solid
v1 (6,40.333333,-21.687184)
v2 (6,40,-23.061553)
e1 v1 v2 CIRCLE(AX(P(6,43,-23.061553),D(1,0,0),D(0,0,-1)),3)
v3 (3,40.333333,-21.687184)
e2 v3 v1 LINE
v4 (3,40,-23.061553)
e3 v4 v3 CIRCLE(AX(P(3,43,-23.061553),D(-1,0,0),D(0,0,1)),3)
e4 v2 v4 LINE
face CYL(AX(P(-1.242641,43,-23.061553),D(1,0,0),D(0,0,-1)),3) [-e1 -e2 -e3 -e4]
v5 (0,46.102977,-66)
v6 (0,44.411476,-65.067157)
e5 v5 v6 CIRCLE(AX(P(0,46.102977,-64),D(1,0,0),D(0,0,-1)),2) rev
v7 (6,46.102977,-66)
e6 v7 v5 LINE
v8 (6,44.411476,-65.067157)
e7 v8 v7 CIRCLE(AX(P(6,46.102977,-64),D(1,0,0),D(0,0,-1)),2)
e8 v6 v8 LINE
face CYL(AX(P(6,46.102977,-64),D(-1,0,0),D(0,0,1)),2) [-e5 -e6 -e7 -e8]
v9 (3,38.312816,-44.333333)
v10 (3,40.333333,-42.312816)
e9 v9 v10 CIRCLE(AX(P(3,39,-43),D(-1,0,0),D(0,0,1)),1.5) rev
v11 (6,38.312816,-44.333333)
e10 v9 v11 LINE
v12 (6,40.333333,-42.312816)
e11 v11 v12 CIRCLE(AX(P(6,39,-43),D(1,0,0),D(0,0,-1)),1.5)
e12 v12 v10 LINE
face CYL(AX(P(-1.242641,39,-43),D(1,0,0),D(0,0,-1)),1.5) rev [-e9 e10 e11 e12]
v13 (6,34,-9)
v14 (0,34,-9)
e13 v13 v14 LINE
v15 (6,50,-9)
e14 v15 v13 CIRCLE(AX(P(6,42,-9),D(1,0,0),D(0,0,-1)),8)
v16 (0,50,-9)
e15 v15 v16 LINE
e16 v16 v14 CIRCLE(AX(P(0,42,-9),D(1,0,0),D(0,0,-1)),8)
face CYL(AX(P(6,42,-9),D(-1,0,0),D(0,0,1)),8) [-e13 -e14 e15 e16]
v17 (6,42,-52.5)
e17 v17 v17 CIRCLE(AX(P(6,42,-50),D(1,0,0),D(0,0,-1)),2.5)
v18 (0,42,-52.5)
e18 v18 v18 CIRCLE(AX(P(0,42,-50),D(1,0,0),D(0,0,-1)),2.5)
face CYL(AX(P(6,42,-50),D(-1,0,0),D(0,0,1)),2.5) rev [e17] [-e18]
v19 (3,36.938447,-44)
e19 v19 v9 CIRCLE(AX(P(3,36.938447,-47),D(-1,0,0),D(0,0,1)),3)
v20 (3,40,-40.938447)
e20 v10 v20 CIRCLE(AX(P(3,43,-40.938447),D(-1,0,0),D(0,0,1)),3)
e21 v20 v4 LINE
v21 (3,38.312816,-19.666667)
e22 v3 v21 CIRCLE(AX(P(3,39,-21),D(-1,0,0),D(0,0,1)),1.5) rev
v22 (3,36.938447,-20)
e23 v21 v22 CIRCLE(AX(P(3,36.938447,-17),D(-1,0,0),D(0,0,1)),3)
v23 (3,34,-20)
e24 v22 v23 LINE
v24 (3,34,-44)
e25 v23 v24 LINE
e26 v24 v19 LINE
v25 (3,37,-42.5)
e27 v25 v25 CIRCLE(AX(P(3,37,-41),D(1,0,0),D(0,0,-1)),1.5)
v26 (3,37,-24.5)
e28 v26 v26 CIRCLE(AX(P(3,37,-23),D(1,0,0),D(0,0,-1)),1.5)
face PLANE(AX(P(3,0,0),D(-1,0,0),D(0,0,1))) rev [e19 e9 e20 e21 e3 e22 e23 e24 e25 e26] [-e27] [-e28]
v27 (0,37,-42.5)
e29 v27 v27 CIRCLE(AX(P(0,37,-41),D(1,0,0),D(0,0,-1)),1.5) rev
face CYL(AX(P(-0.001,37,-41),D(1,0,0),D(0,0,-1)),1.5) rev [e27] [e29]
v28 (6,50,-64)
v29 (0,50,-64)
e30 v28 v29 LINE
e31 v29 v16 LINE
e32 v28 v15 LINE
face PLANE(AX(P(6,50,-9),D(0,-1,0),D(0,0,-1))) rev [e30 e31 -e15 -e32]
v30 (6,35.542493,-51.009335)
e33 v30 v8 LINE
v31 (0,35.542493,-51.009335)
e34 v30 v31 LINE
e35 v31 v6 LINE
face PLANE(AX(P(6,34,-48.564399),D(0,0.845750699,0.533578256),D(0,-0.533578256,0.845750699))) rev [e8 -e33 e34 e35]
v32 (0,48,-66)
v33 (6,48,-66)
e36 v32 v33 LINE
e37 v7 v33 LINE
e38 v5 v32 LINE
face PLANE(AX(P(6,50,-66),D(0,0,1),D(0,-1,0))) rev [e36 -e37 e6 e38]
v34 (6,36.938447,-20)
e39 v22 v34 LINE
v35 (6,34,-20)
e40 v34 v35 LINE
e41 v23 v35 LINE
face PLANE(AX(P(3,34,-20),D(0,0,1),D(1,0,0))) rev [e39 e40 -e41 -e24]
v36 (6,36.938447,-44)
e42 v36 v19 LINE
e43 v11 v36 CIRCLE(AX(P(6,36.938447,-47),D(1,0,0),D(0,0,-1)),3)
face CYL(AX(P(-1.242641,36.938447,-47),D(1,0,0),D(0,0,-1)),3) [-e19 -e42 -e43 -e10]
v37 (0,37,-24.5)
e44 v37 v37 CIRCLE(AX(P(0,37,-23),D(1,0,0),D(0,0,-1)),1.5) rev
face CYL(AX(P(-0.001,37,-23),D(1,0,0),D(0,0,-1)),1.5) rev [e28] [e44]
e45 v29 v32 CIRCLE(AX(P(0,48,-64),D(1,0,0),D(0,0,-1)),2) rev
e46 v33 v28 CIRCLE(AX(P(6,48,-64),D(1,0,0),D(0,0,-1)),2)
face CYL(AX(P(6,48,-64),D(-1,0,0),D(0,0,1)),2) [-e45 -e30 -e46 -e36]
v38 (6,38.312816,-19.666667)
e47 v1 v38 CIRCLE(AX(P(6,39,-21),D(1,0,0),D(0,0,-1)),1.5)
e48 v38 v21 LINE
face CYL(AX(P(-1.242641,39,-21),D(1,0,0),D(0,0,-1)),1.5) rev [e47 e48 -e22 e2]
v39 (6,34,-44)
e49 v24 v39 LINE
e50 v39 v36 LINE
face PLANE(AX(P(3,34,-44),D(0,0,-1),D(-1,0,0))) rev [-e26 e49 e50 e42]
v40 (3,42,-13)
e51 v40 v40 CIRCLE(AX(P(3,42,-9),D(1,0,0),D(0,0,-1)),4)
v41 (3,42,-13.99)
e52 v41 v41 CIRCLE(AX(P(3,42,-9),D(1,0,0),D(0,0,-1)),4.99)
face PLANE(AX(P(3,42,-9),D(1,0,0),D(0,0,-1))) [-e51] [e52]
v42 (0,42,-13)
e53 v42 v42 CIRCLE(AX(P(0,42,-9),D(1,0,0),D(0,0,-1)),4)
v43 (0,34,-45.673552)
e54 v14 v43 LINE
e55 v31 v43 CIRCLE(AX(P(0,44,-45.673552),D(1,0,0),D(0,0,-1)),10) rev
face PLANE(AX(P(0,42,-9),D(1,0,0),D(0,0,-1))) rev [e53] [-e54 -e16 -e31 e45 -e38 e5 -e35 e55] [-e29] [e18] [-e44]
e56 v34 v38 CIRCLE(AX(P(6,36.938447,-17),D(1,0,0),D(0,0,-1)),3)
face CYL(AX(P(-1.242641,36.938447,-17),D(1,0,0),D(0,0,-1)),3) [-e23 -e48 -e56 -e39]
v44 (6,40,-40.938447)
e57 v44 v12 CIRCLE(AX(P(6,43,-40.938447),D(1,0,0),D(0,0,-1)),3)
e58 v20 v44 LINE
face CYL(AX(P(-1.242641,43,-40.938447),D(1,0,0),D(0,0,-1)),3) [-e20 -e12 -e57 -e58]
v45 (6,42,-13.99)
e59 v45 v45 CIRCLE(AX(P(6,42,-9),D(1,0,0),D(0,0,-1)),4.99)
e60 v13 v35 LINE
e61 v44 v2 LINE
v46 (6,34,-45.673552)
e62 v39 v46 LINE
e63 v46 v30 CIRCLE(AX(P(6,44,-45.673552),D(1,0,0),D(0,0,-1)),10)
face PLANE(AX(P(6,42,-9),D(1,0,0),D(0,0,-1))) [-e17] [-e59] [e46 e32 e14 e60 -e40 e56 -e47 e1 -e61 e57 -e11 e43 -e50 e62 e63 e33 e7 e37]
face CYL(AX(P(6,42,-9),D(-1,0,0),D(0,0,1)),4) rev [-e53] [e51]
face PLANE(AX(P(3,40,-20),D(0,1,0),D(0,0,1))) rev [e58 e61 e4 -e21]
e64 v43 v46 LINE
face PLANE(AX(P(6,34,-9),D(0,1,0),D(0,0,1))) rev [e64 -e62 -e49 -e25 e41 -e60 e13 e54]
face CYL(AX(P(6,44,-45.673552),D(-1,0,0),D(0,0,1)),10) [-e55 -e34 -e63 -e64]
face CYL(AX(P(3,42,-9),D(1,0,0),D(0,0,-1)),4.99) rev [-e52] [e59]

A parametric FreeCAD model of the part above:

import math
import FreeCAD as App
import Part
import Sketcher

V = App.Vector
Q = App.Units.Quantity


def edges_at(feature, points):
    """Names of the edges that pass closest to the given points."""
    edges = feature.Shape.Edges
    near = lambda p: min(range(len(edges)), key=lambda i: edges[i].distToShape(Part.Vertex(*p))[0])
    return sorted({f"Edge{near(p) + 1}" for p in points})


def add_polygon(sketch, points):
    """Adds a closed chain of lines whose ends are joined by coincident constraints."""
    first, n = sketch.GeometryCount, len(points)
    for a, b in zip(points, points[1:] + points[:1]):
        sketch.addGeometry(Part.LineSegment(App.Vector(*a, 0), App.Vector(*b, 0)), False)
    for i in range(n):
        sketch.addConstraint(Sketcher.Constraint("Coincident", first + i, 2, first + (i + 1) % n, 1))

doc = App.newDocument("Part")
body = doc.addObject("PartDesign::Body", "Body")

sketch1 = body.newObject("Sketcher::SketchObject", "Sketch")
sketch1.AttachmentSupport = (doc.getObject("YZ_Plane"), [""])
sketch1.MapMode = "FlatFace"
sketch1.addGeometry(Part.LineSegment(V(50, -66, 0), V(50, -9, 0)), False)
sketch1.addGeometry(Part.ArcOfCircle(Part.Circle(V(42, -9, 0), V(0, 0, 1), 8), math.radians(0), math.radians(180)), False)
sketch1.addGeometry(Part.LineSegment(V(34, -9, 0), V(34, -48.564399, 0)), False)
sketch1.addGeometry(Part.LineSegment(V(34, -48.564399, 0), V(45, -66, 0)), False)
sketch1.addGeometry(Part.LineSegment(V(45, -66, 0), V(50, -66, 0)), False)
sketch1.addGeometry(Part.Circle(V(42, -50, 0), V(0, 0, 1), 2.5), False)
sketch1.addGeometry(Part.Circle(V(42, -9, 0), V(0, 0, 1), 4), False)
sketch1.addConstraint(Sketcher.Constraint("Tangent", 0, 2, 1, 1))
sketch1.addConstraint(Sketcher.Constraint("Tangent", 1, 2, 2, 1))
sketch1.addConstraint(Sketcher.Constraint("Coincident", 2, 2, 3, 1))
sketch1.addConstraint(Sketcher.Constraint("Coincident", 3, 2, 4, 1))
sketch1.addConstraint(Sketcher.Constraint("Coincident", 4, 2, 0, 1))
sketch1.addConstraint(Sketcher.Constraint("Vertical", 0))
sketch1.addConstraint(Sketcher.Constraint("Vertical", 2))
sketch1.addConstraint(Sketcher.Constraint("Horizontal", 4))
sketch1.addConstraint(Sketcher.Constraint("Coincident", 6, 3, 1, 3))
sketch1.addConstraint(Sketcher.Constraint("Vertical", 1, 3, 5, 3))
sketch1.addConstraint(Sketcher.Constraint("Diameter", 5, Q("5 mm")))
sketch1.addConstraint(Sketcher.Constraint("Diameter", 6, Q("8 mm")))
sketch1.addConstraint(Sketcher.Constraint("Radius", 1, Q("8 mm")))
sketch1.addConstraint(Sketcher.Constraint("DistanceX", 4, 1, 4, 2, Q("5 mm")))
sketch1.addConstraint(Sketcher.Constraint("DistanceY", 0, 1, 0, 2, Q("57 mm")))
sketch1.addConstraint(Sketcher.Constraint("DistanceX", -1, 1, 1, 3, Q("42 mm")))
sketch1.addConstraint(Sketcher.Constraint("DistanceY", 1, 3, -1, 1, Q("9 mm")))
sketch1.addConstraint(Sketcher.Constraint("DistanceY", 5, 3, -1, 1, Q("50 mm")))
sketch1.addConstraint(Sketcher.Constraint("DistanceY", 2, 2, 2, 1, Q("39.564399 mm")))
pad1 = body.newObject("PartDesign::Pad", "Pad")
pad1.Profile = sketch1
pad1.Length = 6

sketch2 = body.newObject("Sketcher::SketchObject", "Sketch001")
sketch2.AttachmentSupport = (doc.getObject("YZ_Plane"), [""])
sketch2.MapMode = "FlatFace"
sketch2.AttachmentOffset = App.Placement(V(0, 0, 6), App.Rotation())
sketch2.addGeometry(Part.Circle(V(42, -9, 0), V(0, 0, 1), 4.99), False)
sketch2.addConstraint(Sketcher.Constraint("Diameter", 0, Q("9.98 mm")))
sketch2.addConstraint(Sketcher.Constraint("DistanceX", -1, 1, 0, 3, Q("42 mm")))
sketch2.addConstraint(Sketcher.Constraint("DistanceY", 0, 3, -1, 1, Q("9 mm")))
pocket1 = body.newObject("PartDesign::Pocket", "Pocket")
pocket1.Profile = sketch2
pocket1.Length = 3

sketch3 = body.newObject("Sketcher::SketchObject", "Sketch002")
sketch3.AttachmentSupport = (doc.getObject("YZ_Plane"), [""])
sketch3.MapMode = "FlatFace"
sketch3.AttachmentOffset = App.Placement(V(0, 0, 6), App.Rotation())
add_polygon(sketch3, [(40, -20), (34, -20), (34, -44), (40, -44)])
sketch3.addConstraint(Sketcher.Constraint("Horizontal", 0))
sketch3.addConstraint(Sketcher.Constraint("Vertical", 1))
sketch3.addConstraint(Sketcher.Constraint("Horizontal", 2))
sketch3.addConstraint(Sketcher.Constraint("Vertical", 3))
sketch3.addConstraint(Sketcher.Constraint("DistanceX", 0, 2, 0, 1, Q("6 mm")))
sketch3.addConstraint(Sketcher.Constraint("DistanceY", 1, 2, 1, 1, Q("24 mm")))
sketch3.addConstraint(Sketcher.Constraint("DistanceX", -1, 1, 0, 2, Q("34 mm")))
sketch3.addConstraint(Sketcher.Constraint("DistanceY", 0, 2, -1, 1, Q("20 mm")))
pocket2 = body.newObject("PartDesign::Pocket", "Pocket001")
pocket2.Profile = sketch3
pocket2.Length = 3

sketch4 = body.newObject("Sketcher::SketchObject", "Sketch003")
sketch4.AttachmentSupport = (doc.getObject("YZ_Plane"), [""])
sketch4.MapMode = "FlatFace"
sketch4.AttachmentOffset = App.Placement(V(0, 0, 6), App.Rotation())
sketch4.addGeometry(Part.Circle(V(39, -21, 0), V(0, 0, 1), 1.5), False)
sketch4.addGeometry(Part.Circle(V(39, -43, 0), V(0, 0, 1), 1.5), False)
sketch4.addConstraint(Sketcher.Constraint("Equal", 0, 1))
sketch4.addConstraint(Sketcher.Constraint("Vertical", 0, 3, 1, 3))
sketch4.addConstraint(Sketcher.Constraint("Diameter", 0, Q("3 mm")))
sketch4.addConstraint(Sketcher.Constraint("DistanceX", -1, 1, 0, 3, Q("39 mm")))
sketch4.addConstraint(Sketcher.Constraint("DistanceY", 0, 3, -1, 1, Q("21 mm")))
sketch4.addConstraint(Sketcher.Constraint("DistanceY", 1, 3, -1, 1, Q("43 mm")))
pocket3 = body.newObject("PartDesign::Pocket", "Pocket002")
pocket3.Profile = sketch4
pocket3.Length = 3
doc.recompute()

fillet = body.newObject("PartDesign::Fillet", "Fillet")
fillet.Base = (pocket3, edges_at(pocket3, [
    (4.5, 37.882, -20),
    (4.5, 40, -22.118),
    (4.5, 40, -41.882),
    (4.5, 37.882, -44),
]))
fillet.Radius = 3

sketch5 = body.newObject("Sketcher::SketchObject", "Sketch004")
sketch5.AttachmentSupport = (doc.getObject("YZ_Plane"), [""])
sketch5.MapMode = "FlatFace"
sketch5.AttachmentOffset = App.Placement(V(0, 0, 3), App.Rotation())
sketch5.addGeometry(Part.Circle(V(37, -23, 0), V(0, 0, 1), 1.5), False)
sketch5.addConstraint(Sketcher.Constraint("Diameter", 0, Q("3 mm")))
sketch5.addConstraint(Sketcher.Constraint("DistanceX", -1, 1, 0, 3, Q("37 mm")))
sketch5.addConstraint(Sketcher.Constraint("DistanceY", 0, 3, -1, 1, Q("23 mm")))
pocket4 = body.newObject("PartDesign::Pocket", "Pocket003")
pocket4.Profile = sketch5
pocket4.Type = "UpToFirst"

sketch6 = body.newObject("Sketcher::SketchObject", "Sketch005")
sketch6.AttachmentSupport = (doc.getObject("YZ_Plane"), [""])
sketch6.MapMode = "FlatFace"
sketch6.AttachmentOffset = App.Placement(V(0, 0, 3), App.Rotation())
sketch6.addGeometry(Part.Circle(V(37, -41, 0), V(0, 0, 1), 1.5), False)
sketch6.addConstraint(Sketcher.Constraint("Diameter", 0, Q("3 mm")))
sketch6.addConstraint(Sketcher.Constraint("DistanceX", -1, 1, 0, 3, Q("37 mm")))
sketch6.addConstraint(Sketcher.Constraint("DistanceY", 0, 3, -1, 1, Q("41 mm")))
pocket5 = body.newObject("PartDesign::Pocket", "Pocket004")
pocket5.Profile = sketch6
pocket5.Type = "UpToFirst"
doc.recompute()

fillet2 = body.newObject("PartDesign::Fillet", "Fillet001")
fillet2.Base = (pocket5, edges_at(pocket5, [(3, 50, -66), (3, 45, -66)]))
fillet2.Radius = 2
doc.recompute()

fillet3 = body.newObject("PartDesign::Fillet", "Fillet002")
fillet3.Base = (fillet2, edges_at(fillet2, [(3, 34, -48.564)]))
fillet3.Radius = 10

doc.recompute()
